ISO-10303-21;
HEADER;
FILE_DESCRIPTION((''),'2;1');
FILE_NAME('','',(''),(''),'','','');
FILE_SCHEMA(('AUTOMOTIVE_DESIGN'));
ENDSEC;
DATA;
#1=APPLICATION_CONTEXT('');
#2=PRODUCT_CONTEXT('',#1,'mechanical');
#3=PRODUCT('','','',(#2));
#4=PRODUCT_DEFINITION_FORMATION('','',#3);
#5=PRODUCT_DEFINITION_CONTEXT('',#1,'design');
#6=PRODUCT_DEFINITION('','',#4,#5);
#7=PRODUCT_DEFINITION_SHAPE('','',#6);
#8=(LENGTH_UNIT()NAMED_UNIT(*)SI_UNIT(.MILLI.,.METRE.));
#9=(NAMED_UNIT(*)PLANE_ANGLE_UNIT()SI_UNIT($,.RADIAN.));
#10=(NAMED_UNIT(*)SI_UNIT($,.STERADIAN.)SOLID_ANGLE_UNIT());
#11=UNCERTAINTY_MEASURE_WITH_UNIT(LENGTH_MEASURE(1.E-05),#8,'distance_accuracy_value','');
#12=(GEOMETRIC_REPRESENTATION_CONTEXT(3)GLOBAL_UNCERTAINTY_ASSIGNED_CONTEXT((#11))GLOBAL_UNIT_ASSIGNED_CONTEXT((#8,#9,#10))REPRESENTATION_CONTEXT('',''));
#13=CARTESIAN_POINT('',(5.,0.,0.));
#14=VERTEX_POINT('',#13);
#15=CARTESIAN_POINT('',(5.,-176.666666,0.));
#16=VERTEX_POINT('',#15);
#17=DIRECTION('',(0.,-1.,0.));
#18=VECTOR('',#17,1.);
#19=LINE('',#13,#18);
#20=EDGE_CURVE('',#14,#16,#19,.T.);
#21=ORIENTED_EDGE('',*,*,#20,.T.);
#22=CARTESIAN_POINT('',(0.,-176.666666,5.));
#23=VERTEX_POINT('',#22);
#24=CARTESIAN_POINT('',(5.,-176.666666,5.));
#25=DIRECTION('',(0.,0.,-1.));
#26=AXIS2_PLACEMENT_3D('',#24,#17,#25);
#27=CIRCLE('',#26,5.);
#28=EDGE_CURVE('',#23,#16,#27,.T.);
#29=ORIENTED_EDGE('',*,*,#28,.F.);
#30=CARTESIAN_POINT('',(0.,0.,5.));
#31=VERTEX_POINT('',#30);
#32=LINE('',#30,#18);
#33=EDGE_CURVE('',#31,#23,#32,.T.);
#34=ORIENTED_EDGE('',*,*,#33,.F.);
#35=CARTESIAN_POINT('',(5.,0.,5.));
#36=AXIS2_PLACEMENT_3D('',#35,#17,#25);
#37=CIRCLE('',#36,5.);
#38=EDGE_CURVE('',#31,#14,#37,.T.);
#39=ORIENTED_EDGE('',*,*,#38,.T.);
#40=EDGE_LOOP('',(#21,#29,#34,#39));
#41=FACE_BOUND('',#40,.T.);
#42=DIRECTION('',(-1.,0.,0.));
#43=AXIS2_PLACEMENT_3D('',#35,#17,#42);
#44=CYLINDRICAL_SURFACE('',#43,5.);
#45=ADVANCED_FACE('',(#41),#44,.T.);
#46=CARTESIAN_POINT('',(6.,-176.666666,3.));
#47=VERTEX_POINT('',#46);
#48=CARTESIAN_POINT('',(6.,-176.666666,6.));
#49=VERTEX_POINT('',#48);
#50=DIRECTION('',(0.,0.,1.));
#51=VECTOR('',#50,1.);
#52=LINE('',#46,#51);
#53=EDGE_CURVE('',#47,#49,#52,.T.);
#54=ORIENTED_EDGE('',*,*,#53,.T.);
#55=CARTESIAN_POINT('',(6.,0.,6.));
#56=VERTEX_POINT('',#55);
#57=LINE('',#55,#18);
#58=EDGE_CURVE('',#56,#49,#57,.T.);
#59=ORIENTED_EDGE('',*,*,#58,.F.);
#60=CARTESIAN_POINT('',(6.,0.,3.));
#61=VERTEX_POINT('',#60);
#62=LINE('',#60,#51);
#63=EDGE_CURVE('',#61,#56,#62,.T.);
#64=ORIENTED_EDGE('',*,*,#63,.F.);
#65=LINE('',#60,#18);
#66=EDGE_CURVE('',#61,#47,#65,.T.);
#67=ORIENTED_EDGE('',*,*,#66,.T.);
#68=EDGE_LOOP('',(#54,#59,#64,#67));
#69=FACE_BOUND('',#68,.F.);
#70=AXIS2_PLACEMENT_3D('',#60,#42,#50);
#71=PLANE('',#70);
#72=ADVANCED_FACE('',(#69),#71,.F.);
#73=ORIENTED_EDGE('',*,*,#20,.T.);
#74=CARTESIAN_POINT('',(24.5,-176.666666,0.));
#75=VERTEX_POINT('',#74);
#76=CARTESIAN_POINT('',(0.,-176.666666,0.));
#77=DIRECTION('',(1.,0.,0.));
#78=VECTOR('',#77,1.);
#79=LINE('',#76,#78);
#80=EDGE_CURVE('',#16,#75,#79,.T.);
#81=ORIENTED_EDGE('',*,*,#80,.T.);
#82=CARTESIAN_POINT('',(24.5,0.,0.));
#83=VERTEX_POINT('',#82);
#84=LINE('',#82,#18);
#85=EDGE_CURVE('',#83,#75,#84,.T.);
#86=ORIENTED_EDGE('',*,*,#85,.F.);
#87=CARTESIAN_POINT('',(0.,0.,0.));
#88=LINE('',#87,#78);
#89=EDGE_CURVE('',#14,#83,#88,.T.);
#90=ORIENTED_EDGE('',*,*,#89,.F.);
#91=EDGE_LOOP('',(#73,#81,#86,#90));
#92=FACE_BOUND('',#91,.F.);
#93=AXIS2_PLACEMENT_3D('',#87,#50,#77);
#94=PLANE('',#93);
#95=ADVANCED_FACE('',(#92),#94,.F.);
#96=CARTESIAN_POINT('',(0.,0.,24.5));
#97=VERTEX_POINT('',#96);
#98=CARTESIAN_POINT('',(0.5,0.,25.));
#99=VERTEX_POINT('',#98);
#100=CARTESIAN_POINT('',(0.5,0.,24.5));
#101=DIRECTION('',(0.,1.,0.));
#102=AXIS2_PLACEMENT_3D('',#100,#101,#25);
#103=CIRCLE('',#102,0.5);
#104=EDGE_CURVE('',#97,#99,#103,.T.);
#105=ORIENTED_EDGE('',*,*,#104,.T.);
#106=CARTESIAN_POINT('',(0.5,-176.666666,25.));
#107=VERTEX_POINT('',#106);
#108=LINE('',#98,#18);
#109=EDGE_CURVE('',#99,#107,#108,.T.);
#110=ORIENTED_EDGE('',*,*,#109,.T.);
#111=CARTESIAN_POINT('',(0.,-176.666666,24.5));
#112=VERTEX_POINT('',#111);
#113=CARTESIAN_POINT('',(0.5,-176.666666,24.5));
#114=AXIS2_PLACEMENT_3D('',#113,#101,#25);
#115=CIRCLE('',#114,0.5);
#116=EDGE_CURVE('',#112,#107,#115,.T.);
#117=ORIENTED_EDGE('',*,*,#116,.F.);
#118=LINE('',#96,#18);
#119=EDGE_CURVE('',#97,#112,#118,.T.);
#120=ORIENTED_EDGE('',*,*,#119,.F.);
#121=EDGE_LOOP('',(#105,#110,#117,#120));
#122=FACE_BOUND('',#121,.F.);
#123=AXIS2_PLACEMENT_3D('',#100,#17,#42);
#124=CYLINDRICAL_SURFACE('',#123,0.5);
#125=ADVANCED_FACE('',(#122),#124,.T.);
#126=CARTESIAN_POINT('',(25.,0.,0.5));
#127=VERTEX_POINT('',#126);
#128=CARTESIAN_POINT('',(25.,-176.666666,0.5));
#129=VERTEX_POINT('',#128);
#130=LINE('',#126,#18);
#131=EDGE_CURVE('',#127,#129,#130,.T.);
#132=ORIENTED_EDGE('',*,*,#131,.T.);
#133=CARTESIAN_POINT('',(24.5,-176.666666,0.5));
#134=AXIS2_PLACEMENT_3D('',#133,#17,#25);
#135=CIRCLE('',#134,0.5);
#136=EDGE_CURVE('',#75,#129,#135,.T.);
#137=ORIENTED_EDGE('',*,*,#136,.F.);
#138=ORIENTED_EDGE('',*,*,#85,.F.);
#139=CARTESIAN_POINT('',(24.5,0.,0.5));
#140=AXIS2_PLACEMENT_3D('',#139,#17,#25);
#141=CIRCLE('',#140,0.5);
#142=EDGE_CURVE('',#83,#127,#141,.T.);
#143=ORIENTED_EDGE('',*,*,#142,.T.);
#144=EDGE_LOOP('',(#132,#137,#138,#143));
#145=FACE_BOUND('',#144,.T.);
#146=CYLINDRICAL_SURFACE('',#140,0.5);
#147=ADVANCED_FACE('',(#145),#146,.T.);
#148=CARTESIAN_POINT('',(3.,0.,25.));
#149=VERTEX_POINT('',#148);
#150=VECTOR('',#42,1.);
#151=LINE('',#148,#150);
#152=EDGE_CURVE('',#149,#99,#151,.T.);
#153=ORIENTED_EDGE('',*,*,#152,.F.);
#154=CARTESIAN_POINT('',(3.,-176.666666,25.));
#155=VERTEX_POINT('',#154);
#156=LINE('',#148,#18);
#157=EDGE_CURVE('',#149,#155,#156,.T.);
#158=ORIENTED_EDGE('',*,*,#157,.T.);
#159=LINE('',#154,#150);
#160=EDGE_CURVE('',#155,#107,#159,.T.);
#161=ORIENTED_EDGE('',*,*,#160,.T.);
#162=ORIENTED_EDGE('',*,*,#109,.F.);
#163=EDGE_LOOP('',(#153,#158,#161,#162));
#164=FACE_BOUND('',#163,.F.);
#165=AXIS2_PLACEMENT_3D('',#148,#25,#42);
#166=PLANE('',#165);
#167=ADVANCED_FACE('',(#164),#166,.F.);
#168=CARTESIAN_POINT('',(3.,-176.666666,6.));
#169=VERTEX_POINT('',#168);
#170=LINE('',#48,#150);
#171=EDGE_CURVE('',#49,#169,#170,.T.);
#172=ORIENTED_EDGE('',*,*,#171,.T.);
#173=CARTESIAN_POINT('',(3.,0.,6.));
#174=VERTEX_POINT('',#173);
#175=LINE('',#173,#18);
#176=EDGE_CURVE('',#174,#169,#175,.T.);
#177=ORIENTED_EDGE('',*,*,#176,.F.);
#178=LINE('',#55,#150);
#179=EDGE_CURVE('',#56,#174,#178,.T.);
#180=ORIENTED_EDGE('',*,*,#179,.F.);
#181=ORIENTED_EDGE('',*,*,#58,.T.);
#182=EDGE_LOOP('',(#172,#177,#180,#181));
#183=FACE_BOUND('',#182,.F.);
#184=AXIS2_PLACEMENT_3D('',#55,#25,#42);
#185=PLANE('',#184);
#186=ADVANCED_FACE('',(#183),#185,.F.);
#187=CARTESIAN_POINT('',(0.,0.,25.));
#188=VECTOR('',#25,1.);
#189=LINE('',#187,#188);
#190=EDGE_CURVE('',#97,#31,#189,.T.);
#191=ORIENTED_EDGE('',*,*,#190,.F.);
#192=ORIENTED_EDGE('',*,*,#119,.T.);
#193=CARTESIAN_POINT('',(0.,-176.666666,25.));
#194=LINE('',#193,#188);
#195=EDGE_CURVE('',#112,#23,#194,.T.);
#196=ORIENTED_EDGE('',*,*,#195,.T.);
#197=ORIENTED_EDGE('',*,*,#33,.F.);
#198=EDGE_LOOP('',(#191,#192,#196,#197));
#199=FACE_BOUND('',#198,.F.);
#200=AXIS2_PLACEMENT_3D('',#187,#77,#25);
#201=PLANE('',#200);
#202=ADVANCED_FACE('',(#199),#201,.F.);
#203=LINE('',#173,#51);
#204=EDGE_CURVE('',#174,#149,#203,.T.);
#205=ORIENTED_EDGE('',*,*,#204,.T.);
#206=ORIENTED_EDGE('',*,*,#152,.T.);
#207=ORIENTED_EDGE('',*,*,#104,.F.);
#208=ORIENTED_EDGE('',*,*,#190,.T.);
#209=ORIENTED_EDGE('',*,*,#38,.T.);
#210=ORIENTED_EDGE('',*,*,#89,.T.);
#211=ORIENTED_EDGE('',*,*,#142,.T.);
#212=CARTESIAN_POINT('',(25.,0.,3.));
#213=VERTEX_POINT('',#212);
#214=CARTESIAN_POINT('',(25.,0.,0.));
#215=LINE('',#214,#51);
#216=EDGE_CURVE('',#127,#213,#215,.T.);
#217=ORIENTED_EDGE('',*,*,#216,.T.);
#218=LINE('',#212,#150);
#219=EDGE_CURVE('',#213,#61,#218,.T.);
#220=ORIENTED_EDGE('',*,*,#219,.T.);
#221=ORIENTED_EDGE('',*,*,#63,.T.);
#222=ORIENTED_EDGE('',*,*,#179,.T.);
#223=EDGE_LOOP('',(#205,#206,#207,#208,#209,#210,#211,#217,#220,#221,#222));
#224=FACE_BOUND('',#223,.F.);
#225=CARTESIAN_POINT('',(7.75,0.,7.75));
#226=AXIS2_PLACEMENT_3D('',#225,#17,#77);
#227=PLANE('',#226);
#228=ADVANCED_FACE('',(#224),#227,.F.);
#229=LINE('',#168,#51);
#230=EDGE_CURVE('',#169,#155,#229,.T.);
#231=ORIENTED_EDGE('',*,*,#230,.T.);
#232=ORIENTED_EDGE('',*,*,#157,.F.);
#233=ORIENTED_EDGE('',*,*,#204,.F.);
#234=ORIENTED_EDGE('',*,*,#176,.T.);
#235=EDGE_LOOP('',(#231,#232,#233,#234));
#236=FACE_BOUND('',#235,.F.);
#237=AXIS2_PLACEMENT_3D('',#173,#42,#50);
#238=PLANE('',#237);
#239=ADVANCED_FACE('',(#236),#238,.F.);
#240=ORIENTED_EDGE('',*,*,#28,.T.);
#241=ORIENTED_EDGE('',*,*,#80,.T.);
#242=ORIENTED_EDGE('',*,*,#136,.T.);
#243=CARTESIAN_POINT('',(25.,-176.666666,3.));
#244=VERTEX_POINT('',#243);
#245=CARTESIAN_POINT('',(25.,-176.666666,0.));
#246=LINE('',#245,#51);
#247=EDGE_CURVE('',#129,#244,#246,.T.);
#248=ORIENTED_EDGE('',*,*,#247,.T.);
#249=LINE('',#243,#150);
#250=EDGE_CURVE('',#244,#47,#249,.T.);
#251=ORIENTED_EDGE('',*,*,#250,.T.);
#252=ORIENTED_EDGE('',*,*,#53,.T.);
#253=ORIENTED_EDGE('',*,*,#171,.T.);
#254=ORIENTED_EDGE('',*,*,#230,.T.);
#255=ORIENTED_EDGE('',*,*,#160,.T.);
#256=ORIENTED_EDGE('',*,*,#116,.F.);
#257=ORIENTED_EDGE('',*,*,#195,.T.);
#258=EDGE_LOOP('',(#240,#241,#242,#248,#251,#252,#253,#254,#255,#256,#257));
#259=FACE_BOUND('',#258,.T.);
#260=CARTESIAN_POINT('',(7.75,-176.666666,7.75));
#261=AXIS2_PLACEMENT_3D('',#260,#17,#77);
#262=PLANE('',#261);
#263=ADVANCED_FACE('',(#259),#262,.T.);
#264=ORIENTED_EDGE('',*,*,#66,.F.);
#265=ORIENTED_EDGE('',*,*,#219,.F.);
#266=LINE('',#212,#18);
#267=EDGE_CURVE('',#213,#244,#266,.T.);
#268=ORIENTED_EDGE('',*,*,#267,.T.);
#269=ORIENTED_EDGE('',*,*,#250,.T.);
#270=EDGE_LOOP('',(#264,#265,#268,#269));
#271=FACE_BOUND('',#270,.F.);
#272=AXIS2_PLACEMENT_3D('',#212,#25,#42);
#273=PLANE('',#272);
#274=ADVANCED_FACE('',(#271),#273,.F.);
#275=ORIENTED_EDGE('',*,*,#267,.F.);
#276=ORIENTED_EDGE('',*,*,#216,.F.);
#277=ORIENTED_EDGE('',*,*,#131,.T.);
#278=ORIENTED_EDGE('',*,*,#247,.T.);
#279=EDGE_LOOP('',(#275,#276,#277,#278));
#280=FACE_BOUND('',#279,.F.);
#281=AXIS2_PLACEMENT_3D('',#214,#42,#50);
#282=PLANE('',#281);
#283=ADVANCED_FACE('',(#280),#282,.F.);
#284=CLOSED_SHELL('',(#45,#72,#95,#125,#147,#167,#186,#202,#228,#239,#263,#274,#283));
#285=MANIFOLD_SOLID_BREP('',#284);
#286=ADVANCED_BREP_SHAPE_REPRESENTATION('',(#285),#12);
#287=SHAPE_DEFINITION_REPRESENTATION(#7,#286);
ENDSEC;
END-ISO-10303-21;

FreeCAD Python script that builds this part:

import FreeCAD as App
import Part
import Sketcher
from FreeCAD import Vector
Q = App.Units.Quantity


def edges_at(feature, points):
    """Names of the edges that pass closest to the given points."""
    edges = feature.Shape.Edges
    near = lambda p: min(range(len(edges)), key=lambda i: edges[i].distToShape(Part.Vertex(*p))[0])
    return sorted({f"Edge{near(p) + 1}" for p in points})

doc = App.newDocument("Part")
body = doc.addObject("PartDesign::Body", "Body")

sketch1 = body.newObject("Sketcher::SketchObject", "Sketch")
sketch1.AttachmentSupport = (doc.getObject("XZ_Plane"), [""])
sketch1.MapMode = "FlatFace"
sketch1.addGeometry([
    Part.LineSegment(Vector(3, 25, 0), Vector(0, 25, 0)),
    Part.LineSegment(Vector(0, 25, 0), Vector(0, 0, 0)),
    Part.LineSegment(Vector(0, 0, 0), Vector(25, 0, 0)),
    Part.LineSegment(Vector(25, 0, 0), Vector(25, 3, 0)),
    Part.LineSegment(Vector(25, 3, 0), Vector(6, 3, 0)),
    Part.LineSegment(Vector(6, 3, 0), Vector(6, 6, 0)),
    Part.LineSegment(Vector(6, 6, 0), Vector(3, 6, 0)),
    Part.LineSegment(Vector(3, 6, 0), Vector(3, 25, 0)),
], False)
sketch1.addConstraint([
    Sketcher.Constraint("Coincident", 0, 2, 1, 1),
    Sketcher.Constraint("Coincident", 1, 2, 2, 1),
    Sketcher.Constraint("Coincident", 2, 2, 3, 1),
    Sketcher.Constraint("Coincident", 3, 2, 4, 1),
    Sketcher.Constraint("Coincident", 4, 2, 5, 1),
    Sketcher.Constraint("Coincident", 5, 2, 6, 1),
    Sketcher.Constraint("Coincident", 6, 2, 7, 1),
    Sketcher.Constraint("Coincident", 7, 2, 0, 1),
    Sketcher.Constraint("Horizontal", 0),
    Sketcher.Constraint("Vertical", 1),
    Sketcher.Constraint("Horizontal", 2),
    Sketcher.Constraint("Vertical", 3),
    Sketcher.Constraint("Horizontal", 4),
    Sketcher.Constraint("Vertical", 5),
    Sketcher.Constraint("Horizontal", 6),
    Sketcher.Constraint("Vertical", 7),
    Sketcher.Constraint("Coincident", 1, 2, -1, 1),
    Sketcher.Constraint("Equal", 0, 6),
    Sketcher.Constraint("Equal", 2, 1),
    Sketcher.Constraint("Equal", 6, 3),
    Sketcher.Constraint("Equal", 3, 5),
    Sketcher.Constraint("DistanceX", 0, 2, 0, 1, Q("3 mm")),
    Sketcher.Constraint("DistanceX", 2, 1, 2, 2, Q("25 mm")),
])
pad1 = body.newObject("PartDesign::Pad", "Pad")
pad1.Profile = sketch1
pad1.Length = 176.666666
doc.recompute()

fillet = body.newObject("PartDesign::Fillet", "Fillet")
fillet.Base = (pad1, edges_at(pad1, [(0, -88.333, 0)]))
fillet.Radius = 5
doc.recompute()

fillet2 = body.newObject("PartDesign::Fillet", "Fillet001")
fillet2.Base = (fillet, edges_at(fillet, [(0, -88.333, 25), (25, -88.333, 0)]))
fillet2.Radius = 0.5

doc.recompute()
